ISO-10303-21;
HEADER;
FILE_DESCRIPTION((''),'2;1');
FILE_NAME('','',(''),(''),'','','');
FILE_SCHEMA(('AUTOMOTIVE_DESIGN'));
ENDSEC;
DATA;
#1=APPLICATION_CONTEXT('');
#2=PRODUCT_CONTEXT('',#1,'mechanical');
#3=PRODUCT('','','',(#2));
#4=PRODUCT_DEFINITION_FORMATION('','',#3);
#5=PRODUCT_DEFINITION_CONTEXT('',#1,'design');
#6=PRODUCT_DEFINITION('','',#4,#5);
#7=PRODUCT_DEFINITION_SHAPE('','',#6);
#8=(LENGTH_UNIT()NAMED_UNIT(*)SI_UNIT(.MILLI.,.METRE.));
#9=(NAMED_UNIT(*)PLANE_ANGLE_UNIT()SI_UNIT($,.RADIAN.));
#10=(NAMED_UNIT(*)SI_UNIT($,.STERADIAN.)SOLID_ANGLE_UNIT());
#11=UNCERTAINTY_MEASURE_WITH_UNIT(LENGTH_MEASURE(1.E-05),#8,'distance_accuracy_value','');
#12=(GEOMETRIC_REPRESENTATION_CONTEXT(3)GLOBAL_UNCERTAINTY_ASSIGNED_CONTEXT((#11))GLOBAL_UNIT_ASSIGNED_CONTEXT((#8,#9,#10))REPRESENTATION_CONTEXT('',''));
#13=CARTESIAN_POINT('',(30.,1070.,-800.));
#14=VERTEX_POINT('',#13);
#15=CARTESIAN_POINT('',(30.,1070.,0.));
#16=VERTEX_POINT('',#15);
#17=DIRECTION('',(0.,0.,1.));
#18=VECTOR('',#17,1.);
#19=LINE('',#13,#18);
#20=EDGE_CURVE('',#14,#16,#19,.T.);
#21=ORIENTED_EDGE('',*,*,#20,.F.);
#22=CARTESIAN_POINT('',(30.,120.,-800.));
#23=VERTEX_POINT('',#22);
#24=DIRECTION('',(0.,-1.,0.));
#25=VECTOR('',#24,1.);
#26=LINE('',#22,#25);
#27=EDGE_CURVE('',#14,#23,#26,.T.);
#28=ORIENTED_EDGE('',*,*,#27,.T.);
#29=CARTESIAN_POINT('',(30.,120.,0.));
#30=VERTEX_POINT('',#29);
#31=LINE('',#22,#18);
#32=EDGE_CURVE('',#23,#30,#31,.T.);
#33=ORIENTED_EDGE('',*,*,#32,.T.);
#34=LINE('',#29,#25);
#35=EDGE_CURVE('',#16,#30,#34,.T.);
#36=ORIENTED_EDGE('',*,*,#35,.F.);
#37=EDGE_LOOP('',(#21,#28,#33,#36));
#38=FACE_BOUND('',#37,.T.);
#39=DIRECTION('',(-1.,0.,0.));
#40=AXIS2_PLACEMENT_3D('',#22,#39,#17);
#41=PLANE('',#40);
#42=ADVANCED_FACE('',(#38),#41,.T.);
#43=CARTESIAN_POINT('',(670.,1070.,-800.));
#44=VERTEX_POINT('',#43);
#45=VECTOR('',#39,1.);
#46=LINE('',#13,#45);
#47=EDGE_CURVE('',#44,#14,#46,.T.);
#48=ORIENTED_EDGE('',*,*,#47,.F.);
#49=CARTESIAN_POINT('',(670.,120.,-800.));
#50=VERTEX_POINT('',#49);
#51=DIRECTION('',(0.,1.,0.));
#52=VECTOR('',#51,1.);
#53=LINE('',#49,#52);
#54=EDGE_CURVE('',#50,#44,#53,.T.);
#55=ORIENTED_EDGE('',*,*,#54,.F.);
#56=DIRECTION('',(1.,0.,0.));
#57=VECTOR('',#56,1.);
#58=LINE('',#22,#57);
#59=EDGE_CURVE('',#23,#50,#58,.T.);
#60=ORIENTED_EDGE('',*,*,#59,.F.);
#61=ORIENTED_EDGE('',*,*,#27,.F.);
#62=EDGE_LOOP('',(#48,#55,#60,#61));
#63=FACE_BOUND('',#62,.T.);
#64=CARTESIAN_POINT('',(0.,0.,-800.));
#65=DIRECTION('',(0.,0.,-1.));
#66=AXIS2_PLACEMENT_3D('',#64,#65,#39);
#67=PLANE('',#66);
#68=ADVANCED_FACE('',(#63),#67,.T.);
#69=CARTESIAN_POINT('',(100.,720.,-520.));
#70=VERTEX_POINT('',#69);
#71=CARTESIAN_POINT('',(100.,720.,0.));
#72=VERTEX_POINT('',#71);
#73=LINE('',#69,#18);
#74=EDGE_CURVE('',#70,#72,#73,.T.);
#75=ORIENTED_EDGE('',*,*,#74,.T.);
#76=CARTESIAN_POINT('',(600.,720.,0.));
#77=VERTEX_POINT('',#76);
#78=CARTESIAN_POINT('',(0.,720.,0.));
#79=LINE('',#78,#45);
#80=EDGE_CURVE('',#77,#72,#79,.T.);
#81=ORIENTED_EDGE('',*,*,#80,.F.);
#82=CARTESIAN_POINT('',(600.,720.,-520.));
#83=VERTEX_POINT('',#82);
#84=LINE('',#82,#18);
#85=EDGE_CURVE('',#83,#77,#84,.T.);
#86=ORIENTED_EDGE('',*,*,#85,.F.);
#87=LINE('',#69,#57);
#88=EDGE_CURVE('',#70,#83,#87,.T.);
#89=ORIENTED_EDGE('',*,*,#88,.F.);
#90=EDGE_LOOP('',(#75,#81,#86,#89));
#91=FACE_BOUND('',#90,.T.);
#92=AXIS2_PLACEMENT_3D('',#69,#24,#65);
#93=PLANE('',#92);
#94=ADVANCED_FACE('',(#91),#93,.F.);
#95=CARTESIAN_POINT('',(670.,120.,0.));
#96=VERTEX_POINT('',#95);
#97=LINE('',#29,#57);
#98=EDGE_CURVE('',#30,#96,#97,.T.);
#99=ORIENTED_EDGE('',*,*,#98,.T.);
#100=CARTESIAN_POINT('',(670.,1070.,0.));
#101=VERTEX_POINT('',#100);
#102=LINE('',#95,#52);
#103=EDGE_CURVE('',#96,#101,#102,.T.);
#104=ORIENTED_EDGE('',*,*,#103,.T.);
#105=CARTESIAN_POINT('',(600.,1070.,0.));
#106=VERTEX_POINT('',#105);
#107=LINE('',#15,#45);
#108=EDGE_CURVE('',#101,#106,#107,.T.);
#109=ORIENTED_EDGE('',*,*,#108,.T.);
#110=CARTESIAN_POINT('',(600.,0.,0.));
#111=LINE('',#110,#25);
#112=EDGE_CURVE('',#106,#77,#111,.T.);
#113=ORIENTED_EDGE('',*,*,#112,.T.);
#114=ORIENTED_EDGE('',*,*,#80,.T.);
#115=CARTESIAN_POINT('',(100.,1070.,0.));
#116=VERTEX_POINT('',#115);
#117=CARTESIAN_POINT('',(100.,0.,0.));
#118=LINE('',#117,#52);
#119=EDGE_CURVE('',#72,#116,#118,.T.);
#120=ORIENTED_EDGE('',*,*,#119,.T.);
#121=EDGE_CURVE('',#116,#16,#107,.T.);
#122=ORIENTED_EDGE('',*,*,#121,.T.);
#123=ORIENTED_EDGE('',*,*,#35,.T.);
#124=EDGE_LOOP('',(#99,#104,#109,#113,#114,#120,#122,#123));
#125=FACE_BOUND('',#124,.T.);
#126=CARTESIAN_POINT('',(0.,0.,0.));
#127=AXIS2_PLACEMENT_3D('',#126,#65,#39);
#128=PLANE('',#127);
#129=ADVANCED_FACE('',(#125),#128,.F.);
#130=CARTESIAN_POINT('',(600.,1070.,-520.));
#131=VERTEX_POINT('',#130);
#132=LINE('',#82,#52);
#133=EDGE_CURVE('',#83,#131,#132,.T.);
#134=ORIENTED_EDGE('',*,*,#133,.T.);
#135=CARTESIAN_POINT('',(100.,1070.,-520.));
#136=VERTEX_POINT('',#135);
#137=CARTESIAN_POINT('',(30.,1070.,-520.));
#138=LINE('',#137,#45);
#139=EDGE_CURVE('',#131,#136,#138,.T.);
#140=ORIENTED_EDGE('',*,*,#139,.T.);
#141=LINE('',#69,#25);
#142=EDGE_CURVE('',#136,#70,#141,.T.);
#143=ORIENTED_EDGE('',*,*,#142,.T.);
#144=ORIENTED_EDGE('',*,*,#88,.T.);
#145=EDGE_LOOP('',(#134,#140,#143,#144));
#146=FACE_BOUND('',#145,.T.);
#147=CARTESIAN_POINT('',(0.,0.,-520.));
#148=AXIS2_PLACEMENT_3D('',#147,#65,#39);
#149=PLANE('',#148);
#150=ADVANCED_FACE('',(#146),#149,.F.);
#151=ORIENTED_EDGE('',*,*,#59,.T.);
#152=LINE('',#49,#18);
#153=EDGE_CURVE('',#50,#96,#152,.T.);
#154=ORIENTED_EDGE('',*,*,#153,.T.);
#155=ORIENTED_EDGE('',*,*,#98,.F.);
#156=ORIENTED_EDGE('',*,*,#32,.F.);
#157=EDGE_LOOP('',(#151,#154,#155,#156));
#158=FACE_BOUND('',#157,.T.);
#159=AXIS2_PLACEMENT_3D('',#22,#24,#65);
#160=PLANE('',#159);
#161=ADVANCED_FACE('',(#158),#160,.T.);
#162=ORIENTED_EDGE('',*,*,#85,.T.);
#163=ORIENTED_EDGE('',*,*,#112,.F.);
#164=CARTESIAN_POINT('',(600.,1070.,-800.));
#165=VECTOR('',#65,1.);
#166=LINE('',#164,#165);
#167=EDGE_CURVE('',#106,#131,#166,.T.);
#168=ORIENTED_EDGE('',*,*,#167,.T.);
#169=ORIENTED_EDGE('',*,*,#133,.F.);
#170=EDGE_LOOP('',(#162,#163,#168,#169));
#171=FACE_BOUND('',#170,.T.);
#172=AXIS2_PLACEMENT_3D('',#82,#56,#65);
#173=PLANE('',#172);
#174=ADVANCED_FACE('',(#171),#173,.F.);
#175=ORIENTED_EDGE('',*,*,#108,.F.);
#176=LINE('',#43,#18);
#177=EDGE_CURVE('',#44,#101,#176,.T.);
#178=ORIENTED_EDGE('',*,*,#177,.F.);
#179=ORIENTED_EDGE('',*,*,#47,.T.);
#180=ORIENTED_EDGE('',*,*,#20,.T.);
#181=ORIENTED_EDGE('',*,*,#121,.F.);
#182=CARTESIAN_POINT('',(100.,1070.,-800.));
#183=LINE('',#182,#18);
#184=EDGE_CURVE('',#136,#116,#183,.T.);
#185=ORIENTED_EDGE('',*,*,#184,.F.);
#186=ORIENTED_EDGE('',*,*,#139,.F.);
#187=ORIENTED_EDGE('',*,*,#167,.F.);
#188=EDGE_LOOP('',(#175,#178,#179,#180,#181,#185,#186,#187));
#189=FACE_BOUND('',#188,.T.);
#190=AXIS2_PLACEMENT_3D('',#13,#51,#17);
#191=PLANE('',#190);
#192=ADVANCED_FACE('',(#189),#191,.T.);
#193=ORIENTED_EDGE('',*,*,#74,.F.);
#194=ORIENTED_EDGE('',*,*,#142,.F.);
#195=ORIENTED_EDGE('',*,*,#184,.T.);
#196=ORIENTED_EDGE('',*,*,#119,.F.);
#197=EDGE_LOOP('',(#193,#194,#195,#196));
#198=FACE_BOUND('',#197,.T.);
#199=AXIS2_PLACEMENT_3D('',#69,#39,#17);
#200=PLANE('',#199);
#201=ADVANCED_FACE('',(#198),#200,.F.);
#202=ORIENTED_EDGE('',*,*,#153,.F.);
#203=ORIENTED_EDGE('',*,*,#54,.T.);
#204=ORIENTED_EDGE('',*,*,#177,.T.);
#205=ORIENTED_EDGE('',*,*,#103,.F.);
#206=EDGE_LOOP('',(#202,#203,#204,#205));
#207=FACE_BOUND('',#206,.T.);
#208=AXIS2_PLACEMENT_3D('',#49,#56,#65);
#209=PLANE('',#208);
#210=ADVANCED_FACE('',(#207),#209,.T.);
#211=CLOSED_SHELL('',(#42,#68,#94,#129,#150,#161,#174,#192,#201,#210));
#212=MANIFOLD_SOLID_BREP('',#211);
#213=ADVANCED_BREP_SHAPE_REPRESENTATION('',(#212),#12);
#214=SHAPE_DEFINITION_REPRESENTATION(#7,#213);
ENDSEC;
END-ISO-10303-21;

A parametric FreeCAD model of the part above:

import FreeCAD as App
import Part
import Sketcher


def add_polygon(sketch, points):
    """Adds a closed chain of lines whose ends are joined by coincident constraints."""
    first, n = sketch.GeometryCount, len(points)
    for a, b in zip(points, points[1:] + points[:1]):
        sketch.addGeometry(Part.LineSegment(App.Vector(*a, 0), App.Vector(*b, 0)), False)
    for i in range(n):
        sketch.addConstraint(Sketcher.Constraint("Coincident", first + i, 2, first + (i + 1) % n, 1))

doc = App.newDocument("Part")
body = doc.addObject("PartDesign::Body", "Body")

# Sketch on XY plane
sketch1 = body.newObject("Sketcher::SketchObject", "Sketch")
sketch1.AttachmentSupport = (doc.getObject("XY_Plane"), [""])
sketch1.MapMode = "FlatFace"
add_polygon(sketch1, [(30, 1070), (30, 120), (670, 120), (670, 1070)])  # lines 0-3
sketch1.addConstraint([
    Sketcher.Constraint("Vertical", 0),
    Sketcher.Constraint("Horizontal", 1),
    Sketcher.Constraint("Vertical", 2),
    Sketcher.Constraint("Horizontal", 3),
    Sketcher.Constraint("DistanceX", 1, 1, 1, 2, 640.0),
    Sketcher.Constraint("DistanceY", 0, 2, 0, 1, 950.0),
    Sketcher.Constraint("DistanceX", -1, 1, 0, 2, 30.0),
    Sketcher.Constraint("DistanceY", -1, 1, 0, 2, 120.0),
])
pad1 = body.newObject("PartDesign::Pad", "Pad")
pad1.Profile = sketch1
pad1.Length = 800
pad1.Reversed = True

# Sketch on XY plane
sketch2 = body.newObject("Sketcher::SketchObject", "Sketch001")
sketch2.AttachmentSupport = (doc.getObject("XY_Plane"), [""])
sketch2.MapMode = "FlatFace"
sketch2.AttachmentOffset = App.Placement(App.Vector(0, 0, 1), App.Rotation())
add_polygon(sketch2, [(100, 1080), (100, 720), (600, 720), (600, 1080)])  # lines 0-3
sketch2.addConstraint([
    Sketcher.Constraint("Vertical", 0),
    Sketcher.Constraint("Horizontal", 1),
    Sketcher.Constraint("Vertical", 2),
    Sketcher.Constraint("Horizontal", 3),
    Sketcher.Constraint("DistanceX", 1, 1, 1, 2, 500.0),
    Sketcher.Constraint("DistanceY", 0, 2, 0, 1, 360.0),
    Sketcher.Constraint("DistanceX", -1, 1, 0, 2, 100.0),
    Sketcher.Constraint("DistanceY", -1, 1, 0, 2, 720.0),
])
pocket1 = body.newObject("PartDesign::Pocket", "Pocket")
pocket1.Profile = sketch2
pocket1.Length = 521

doc.recompute()
